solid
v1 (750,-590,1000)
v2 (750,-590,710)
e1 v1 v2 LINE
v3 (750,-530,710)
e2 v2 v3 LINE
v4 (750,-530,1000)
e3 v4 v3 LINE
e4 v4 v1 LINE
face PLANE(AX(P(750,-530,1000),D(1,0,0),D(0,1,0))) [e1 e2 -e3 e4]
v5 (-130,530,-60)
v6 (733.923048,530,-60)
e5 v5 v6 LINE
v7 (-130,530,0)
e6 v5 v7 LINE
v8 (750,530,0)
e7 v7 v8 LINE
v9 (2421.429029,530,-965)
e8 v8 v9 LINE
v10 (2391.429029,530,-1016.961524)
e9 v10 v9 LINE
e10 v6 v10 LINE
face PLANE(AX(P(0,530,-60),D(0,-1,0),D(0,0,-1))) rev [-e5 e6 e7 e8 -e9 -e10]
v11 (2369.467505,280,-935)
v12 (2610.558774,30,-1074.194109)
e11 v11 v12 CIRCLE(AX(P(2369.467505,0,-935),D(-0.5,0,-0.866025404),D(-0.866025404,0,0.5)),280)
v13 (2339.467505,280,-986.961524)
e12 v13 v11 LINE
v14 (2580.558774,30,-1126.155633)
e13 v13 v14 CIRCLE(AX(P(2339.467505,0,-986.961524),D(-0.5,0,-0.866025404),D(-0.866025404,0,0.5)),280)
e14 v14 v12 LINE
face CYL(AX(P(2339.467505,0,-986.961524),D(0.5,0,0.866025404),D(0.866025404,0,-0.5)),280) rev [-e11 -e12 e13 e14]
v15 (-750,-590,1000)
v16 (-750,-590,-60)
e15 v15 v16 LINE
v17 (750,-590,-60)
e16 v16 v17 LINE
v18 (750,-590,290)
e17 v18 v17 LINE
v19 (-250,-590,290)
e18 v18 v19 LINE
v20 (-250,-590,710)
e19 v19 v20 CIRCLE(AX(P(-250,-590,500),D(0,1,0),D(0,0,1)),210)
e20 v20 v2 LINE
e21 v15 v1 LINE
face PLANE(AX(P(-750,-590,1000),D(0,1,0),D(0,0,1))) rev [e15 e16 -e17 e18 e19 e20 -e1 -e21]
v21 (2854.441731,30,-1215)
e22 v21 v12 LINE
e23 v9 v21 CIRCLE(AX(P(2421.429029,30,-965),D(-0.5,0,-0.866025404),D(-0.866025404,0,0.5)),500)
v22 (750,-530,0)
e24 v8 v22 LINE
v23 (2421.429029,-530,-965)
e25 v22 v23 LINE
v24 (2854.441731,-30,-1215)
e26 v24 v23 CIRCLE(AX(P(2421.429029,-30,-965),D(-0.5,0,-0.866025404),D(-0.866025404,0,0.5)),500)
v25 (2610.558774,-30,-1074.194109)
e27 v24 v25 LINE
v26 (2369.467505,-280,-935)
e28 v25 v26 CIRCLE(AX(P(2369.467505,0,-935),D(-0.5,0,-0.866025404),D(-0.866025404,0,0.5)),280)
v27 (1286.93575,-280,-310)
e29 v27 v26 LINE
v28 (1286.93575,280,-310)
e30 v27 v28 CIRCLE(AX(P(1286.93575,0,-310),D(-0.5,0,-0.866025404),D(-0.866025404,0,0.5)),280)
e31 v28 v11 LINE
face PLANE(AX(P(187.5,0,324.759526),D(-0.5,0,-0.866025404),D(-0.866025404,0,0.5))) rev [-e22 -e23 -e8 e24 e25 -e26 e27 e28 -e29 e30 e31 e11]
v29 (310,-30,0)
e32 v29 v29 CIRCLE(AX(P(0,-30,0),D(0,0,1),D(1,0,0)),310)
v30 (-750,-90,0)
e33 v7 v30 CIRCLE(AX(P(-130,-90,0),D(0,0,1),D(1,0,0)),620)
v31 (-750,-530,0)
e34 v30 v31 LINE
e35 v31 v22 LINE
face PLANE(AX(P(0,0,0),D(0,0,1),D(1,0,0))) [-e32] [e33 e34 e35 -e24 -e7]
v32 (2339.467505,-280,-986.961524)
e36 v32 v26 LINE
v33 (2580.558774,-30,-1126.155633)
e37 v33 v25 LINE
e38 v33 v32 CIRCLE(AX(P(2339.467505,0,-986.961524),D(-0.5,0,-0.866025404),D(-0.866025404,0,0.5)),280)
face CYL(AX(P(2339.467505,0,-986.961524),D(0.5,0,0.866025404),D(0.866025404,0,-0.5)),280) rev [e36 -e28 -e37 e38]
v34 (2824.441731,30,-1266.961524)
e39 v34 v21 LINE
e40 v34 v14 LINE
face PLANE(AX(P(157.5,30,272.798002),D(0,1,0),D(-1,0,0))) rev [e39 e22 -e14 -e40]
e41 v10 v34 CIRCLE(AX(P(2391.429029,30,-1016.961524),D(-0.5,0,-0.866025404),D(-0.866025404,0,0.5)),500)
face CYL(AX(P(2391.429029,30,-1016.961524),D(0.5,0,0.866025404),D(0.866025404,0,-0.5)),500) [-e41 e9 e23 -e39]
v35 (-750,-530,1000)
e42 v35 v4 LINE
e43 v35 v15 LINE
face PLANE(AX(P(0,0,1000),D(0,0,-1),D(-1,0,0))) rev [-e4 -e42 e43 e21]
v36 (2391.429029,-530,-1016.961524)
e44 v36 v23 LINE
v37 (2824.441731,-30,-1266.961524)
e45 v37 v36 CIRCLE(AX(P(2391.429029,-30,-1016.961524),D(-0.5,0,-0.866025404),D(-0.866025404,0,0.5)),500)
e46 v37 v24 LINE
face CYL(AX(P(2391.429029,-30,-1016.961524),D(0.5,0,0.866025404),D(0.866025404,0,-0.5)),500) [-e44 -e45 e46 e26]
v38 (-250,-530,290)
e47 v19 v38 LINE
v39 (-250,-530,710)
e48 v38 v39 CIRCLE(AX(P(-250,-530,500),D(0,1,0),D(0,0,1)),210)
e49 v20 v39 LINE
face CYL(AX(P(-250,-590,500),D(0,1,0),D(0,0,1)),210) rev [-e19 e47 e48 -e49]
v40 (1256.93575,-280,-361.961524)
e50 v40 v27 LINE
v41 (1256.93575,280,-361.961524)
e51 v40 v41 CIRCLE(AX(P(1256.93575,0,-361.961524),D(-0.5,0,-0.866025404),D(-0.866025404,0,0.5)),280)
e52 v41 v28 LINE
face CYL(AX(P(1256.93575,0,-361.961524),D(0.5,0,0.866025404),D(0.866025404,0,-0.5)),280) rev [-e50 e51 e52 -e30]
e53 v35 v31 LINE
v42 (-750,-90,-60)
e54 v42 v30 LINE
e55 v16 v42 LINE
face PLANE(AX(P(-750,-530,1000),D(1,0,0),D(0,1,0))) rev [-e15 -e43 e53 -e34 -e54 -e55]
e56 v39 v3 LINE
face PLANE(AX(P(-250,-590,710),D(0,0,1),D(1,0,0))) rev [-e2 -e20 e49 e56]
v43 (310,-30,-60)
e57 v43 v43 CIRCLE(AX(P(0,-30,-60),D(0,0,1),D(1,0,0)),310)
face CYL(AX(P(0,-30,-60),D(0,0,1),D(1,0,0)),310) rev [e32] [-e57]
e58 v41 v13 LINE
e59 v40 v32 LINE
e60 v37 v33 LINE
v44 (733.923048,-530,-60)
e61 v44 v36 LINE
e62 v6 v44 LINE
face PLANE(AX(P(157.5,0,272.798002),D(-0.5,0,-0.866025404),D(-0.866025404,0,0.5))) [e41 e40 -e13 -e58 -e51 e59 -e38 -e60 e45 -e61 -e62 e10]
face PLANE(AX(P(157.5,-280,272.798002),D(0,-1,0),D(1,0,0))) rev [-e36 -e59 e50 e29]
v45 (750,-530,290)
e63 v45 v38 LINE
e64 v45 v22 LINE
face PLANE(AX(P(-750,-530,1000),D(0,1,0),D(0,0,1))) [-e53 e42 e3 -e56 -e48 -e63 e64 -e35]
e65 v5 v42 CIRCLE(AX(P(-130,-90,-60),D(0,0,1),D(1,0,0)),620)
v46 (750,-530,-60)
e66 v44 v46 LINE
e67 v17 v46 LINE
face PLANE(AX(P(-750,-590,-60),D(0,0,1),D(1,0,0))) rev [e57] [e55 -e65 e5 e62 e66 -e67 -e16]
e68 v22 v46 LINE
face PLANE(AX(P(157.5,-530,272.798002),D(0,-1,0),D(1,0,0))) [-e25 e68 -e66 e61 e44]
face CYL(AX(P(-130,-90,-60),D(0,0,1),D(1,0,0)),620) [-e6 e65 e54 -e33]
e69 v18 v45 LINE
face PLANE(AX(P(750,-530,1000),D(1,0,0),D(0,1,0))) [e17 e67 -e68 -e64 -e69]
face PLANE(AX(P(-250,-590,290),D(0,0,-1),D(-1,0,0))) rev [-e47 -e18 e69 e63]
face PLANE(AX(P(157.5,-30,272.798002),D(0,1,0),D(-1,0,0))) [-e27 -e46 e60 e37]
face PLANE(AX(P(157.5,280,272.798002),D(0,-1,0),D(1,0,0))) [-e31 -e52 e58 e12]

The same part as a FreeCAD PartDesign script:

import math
import FreeCAD as App
import Part
import Sketcher

V = App.Vector

doc = App.newDocument("Part")
body = doc.addObject("PartDesign::Body", "Body")

sketch1 = body.newObject("Sketcher::SketchObject", "Sketch")
sketch1.AttachmentSupport = (doc.getObject("XY_Plane"), [""])
sketch1.MapMode = "FlatFace"
sketch1.addGeometry([
    Part.LineSegment(V(-750, -530, 0), V(-750, -590, 0)),
    Part.LineSegment(V(-750, -590, 0), V(750, -590, 0)),
    Part.LineSegment(V(750, -590, 0), V(750, -530, 0)),
    Part.LineSegment(V(750, -530, 0), V(-750, -530, 0)),
], False)
sketch1.addConstraint([
    Sketcher.Constraint("Coincident", 0, 2, 1, 1),
    Sketcher.Constraint("Coincident", 1, 2, 2, 1),
    Sketcher.Constraint("Coincident", 2, 2, 3, 1),
    Sketcher.Constraint("Coincident", 3, 2, 0, 1),
    Sketcher.Constraint("Vertical", 0),
    Sketcher.Constraint("Horizontal", 1),
    Sketcher.Constraint("Vertical", 2),
    Sketcher.Constraint("Horizontal", 3),
    Sketcher.Constraint("DistanceX", 1, 1, 1, 2, 1500.0),
    Sketcher.Constraint("DistanceY", 0, 2, 0, 1, 60.0),
    Sketcher.Constraint("DistanceX", 0, 2, -1, 1, 750.0),
    Sketcher.Constraint("DistanceY", 0, 2, -1, 1, 590.0),
])
pad1 = body.newObject("PartDesign::Pad", "Pad")
pad1.Profile = sketch1
pad1.Length = 1000
body2 = doc.addObject("PartDesign::Body", "Body001")

sketch2 = body2.newObject("Sketcher::SketchObject", "Sketch001")
sketch2.AttachmentSupport = (doc.getObject("XY_Plane001"), [""])
sketch2.MapMode = "FlatFace"
sketch2.addGeometry([
    Part.LineSegment(V(750, 530, 0), V(-130, 530, 0)),
    Part.ArcOfCircle(Part.Circle(V(-130, -90, 0), V(0, 0, 1), 620), math.radians(90), math.radians(180)),
    Part.LineSegment(V(-750, -90, 0), V(-750, -530, 0)),
    Part.LineSegment(V(-750, -530, 0), V(750, -530, 0)),
    Part.LineSegment(V(750, -530, 0), V(750, 530, 0)),
    Part.Circle(V(0, -30, 0), V(0, 0, 1), 310),
], False)
sketch2.addConstraint([
    Sketcher.Constraint("Tangent", 0, 2, 1, 1),
    Sketcher.Constraint("Tangent", 1, 2, 2, 1),
    Sketcher.Constraint("Coincident", 2, 2, 3, 1),
    Sketcher.Constraint("Coincident", 3, 2, 4, 1),
    Sketcher.Constraint("Coincident", 4, 2, 0, 1),
    Sketcher.Constraint("Horizontal", 0),
    Sketcher.Constraint("Vertical", 2),
    Sketcher.Constraint("Horizontal", 3),
    Sketcher.Constraint("Vertical", 4),
    Sketcher.Constraint("Symmetric", 2, 2, 4, 2, -1, 1),
    Sketcher.Constraint("PointOnObject", 5, 3, -2),
    Sketcher.Constraint("Diameter", 5, 620.0),
    Sketcher.Constraint("Radius", 1, 620.0),
    Sketcher.Constraint("DistanceX", 0, 2, 0, 1, 880.0),
    Sketcher.Constraint("DistanceY", 2, 2, 2, 1, 440.0),
    Sketcher.Constraint("DistanceY", 5, 3, -1, 1, 30.0),
])
pad2 = body2.newObject("PartDesign::Pad", "Pad001")
pad2.Profile = sketch2
pad2.Length = 60
pad2.Reversed = True
body.AllowCompound = True
doc.recompute()

boolean = body.newObject("PartDesign::Boolean", "Boolean")
boolean.Type = "Fuse"
boolean.addObjects([body2])

sketch3 = body.newObject("Sketcher::SketchObject", "Sketch002")
sketch3.AttachmentSupport = (doc.getObject("XZ_Plane"), [""])
sketch3.MapMode = "FlatFace"
sketch3.AttachmentOffset = App.Placement(V(0, 0, 530), App.Rotation())
sketch3.addGeometry([
    Part.LineSegment(V(-750, 0, 0), V(-750, -60, 0)),
    Part.LineSegment(V(-750, -60, 0), V(750, -60, 0)),
    Part.LineSegment(V(750, -60, 0), V(750, 0, 0)),
    Part.LineSegment(V(750, 0, 0), V(-750, 0, 0)),
], False)
sketch3.addConstraint([
    Sketcher.Constraint("Coincident", 0, 2, 1, 1),
    Sketcher.Constraint("Coincident", 1, 2, 2, 1),
    Sketcher.Constraint("Coincident", 2, 2, 3, 1),
    Sketcher.Constraint("Coincident", 3, 2, 0, 1),
    Sketcher.Constraint("Vertical", 0),
    Sketcher.Constraint("Horizontal", 1),
    Sketcher.Constraint("Vertical", 2),
    Sketcher.Constraint("Horizontal", 3),
    Sketcher.Constraint("Symmetric", 2, 2, 3, 2, -1, 1),
    Sketcher.Constraint("DistanceX", 1, 1, 1, 2, 1500.0),
    Sketcher.Constraint("DistanceY", 0, 2, 0, 1, 60.0),
])
pad3 = body.newObject("PartDesign::Pad", "Pad002")
pad3.Profile = sketch3
pad3.Length = 60

sketch4 = body.newObject("Sketcher::SketchObject", "Sketch003")
sketch4.AttachmentSupport = (doc.getObject("XZ_Plane"), [""])
sketch4.MapMode = "FlatFace"
sketch4.AttachmentOffset = App.Placement(V(0, 0, 530), App.Rotation())
sketch4.addGeometry([
    Part.LineSegment(V(-250, 710, 0), V(750, 710, 0)),
    Part.LineSegment(V(750, 710, 0), V(750, 290, 0)),
    Part.LineSegment(V(750, 290, 0), V(-250, 290, 0)),
    Part.ArcOfCircle(Part.Circle(V(-250, 500, 0), V(0, 0, 1), 210), math.radians(90), math.radians(270)),
], False)
sketch4.addConstraint([
    Sketcher.Constraint("Coincident", 0, 2, 1, 1),
    Sketcher.Constraint("Coincident", 1, 2, 2, 1),
    Sketcher.Constraint("Tangent", 2, 2, 3, 2),
    Sketcher.Constraint("Tangent", 3, 1, 0, 1),
    Sketcher.Constraint("Horizontal", 0),
    Sketcher.Constraint("Vertical", 1),
    Sketcher.Constraint("Horizontal", 2),
    Sketcher.Constraint("Radius", 3, 210.0),
    Sketcher.Constraint("DistanceX", 0, 1, 0, 2, 1000.0),
    Sketcher.Constraint("DistanceX", 3, 3, -1, 1, 250.0),
    Sketcher.Constraint("DistanceY", -1, 1, 3, 3, 500.0),
])
pocket1 = body.newObject("PartDesign::Pocket", "Pocket")
pocket1.Profile = sketch4
pocket1.Length = 60
pocket1.Reversed = True

sketch5 = body.newObject("Sketcher::SketchObject", "Sketch004")
sketch5.Placement = App.Placement(V(187.5, 0, 324.759526), App.Rotation(V(0, 1, 0), V(0.866025404, 0, -0.5), V(-0.5, 0, -0.866025404), "ZXY"))
sketch5.addGeometry([
    Part.ArcOfCircle(Part.Circle(V(0, 2520, 0), V(0, 0, 1), 280), math.radians(96), math.radians(180)),
    Part.LineSegment(V(-30, 2798, 0), V(-30, 3080, 0)),
    Part.ArcOfCircle(Part.Circle(V(-30, 2580, 0), V(0, 0, 1), 500), math.radians(90), math.radians(180)),
    Part.LineSegment(V(-530, 2580, 0), V(-530, 650, 0)),
    Part.LineSegment(V(-530, 650, 0), V(530, 650, 0)),
    Part.LineSegment(V(530, 650, 0), V(530, 2580, 0)),
    Part.ArcOfCircle(Part.Circle(V(30, 2580, 0), V(0, 0, 1), 500), math.radians(0), math.radians(90)),
    Part.LineSegment(V(30, 3080, 0), V(30, 2798, 0)),
    Part.ArcOfCircle(Part.Circle(V(0, 2520, 0), V(0, 0, 1), 280), math.radians(0), math.radians(84)),
    Part.LineSegment(V(280, 2520, 0), V(280, 1270, 0)),
    Part.ArcOfCircle(Part.Circle(V(0, 1270, 0), V(0, 0, 1), 280), math.radians(180), math.radians(360)),
    Part.LineSegment(V(-280, 1270, 0), V(-280, 2520, 0)),
], False)
sketch5.addConstraint([
    Sketcher.Constraint("Coincident", 0, 1, 1, 1),
    Sketcher.Constraint("Coincident", 1, 2, 2, 1),
    Sketcher.Constraint("Tangent", 2, 2, 3, 1),
    Sketcher.Constraint("Coincident", 3, 2, 4, 1),
    Sketcher.Constraint("Coincident", 4, 2, 5, 1),
    Sketcher.Constraint("Tangent", 5, 2, 6, 1),
    Sketcher.Constraint("Coincident", 6, 2, 7, 1),
    Sketcher.Constraint("Coincident", 7, 2, 8, 2),
    Sketcher.Constraint("Tangent", 8, 1, 9, 1),
    Sketcher.Constraint("Tangent", 9, 2, 10, 2),
    Sketcher.Constraint("Tangent", 10, 1, 11, 1),
    Sketcher.Constraint("Tangent", 11, 2, 0, 2),
    Sketcher.Constraint("Vertical", 1),
    Sketcher.Constraint("Vertical", 3),
    Sketcher.Constraint("Horizontal", 4),
    Sketcher.Constraint("Vertical", 5),
    Sketcher.Constraint("Vertical", 7),
    Sketcher.Constraint("Vertical", 9),
    Sketcher.Constraint("Vertical", 11),
    Sketcher.Constraint("Coincident", 8, 3, 0, 3),
    Sketcher.Constraint("Equal", 2, 6),
    Sketcher.Constraint("Equal", 0, 8),
    Sketcher.Constraint("Symmetric", 2, 3, 6, 3, -2),
    Sketcher.Constraint("Symmetric", 0, 1, 7, 2, -2),
    Sketcher.Constraint("Vertical", 2, 3, 0, 1),
    Sketcher.Constraint("Radius", 0, 280.0),
    Sketcher.Constraint("Radius", 2, 500.0),
    Sketcher.Constraint("DistanceX", 4, 1, 4, 2, 1060.0),
    Sketcher.Constraint("DistanceY", 3, 2, 3, 1, 1930.000001),
    Sketcher.Constraint("DistanceY", 9, 2, 9, 1, 1250.0),
    Sketcher.Constraint("DistanceY", 0, 3, 2, 3, 60.0),
    Sketcher.Constraint("DistanceY", -1, 1, 0, 1, 2797.907272),
])
pad4 = body.newObject("PartDesign::Pad", "Pad003")
pad4.Profile = sketch5
pad4.Length = 60

doc.recompute()
